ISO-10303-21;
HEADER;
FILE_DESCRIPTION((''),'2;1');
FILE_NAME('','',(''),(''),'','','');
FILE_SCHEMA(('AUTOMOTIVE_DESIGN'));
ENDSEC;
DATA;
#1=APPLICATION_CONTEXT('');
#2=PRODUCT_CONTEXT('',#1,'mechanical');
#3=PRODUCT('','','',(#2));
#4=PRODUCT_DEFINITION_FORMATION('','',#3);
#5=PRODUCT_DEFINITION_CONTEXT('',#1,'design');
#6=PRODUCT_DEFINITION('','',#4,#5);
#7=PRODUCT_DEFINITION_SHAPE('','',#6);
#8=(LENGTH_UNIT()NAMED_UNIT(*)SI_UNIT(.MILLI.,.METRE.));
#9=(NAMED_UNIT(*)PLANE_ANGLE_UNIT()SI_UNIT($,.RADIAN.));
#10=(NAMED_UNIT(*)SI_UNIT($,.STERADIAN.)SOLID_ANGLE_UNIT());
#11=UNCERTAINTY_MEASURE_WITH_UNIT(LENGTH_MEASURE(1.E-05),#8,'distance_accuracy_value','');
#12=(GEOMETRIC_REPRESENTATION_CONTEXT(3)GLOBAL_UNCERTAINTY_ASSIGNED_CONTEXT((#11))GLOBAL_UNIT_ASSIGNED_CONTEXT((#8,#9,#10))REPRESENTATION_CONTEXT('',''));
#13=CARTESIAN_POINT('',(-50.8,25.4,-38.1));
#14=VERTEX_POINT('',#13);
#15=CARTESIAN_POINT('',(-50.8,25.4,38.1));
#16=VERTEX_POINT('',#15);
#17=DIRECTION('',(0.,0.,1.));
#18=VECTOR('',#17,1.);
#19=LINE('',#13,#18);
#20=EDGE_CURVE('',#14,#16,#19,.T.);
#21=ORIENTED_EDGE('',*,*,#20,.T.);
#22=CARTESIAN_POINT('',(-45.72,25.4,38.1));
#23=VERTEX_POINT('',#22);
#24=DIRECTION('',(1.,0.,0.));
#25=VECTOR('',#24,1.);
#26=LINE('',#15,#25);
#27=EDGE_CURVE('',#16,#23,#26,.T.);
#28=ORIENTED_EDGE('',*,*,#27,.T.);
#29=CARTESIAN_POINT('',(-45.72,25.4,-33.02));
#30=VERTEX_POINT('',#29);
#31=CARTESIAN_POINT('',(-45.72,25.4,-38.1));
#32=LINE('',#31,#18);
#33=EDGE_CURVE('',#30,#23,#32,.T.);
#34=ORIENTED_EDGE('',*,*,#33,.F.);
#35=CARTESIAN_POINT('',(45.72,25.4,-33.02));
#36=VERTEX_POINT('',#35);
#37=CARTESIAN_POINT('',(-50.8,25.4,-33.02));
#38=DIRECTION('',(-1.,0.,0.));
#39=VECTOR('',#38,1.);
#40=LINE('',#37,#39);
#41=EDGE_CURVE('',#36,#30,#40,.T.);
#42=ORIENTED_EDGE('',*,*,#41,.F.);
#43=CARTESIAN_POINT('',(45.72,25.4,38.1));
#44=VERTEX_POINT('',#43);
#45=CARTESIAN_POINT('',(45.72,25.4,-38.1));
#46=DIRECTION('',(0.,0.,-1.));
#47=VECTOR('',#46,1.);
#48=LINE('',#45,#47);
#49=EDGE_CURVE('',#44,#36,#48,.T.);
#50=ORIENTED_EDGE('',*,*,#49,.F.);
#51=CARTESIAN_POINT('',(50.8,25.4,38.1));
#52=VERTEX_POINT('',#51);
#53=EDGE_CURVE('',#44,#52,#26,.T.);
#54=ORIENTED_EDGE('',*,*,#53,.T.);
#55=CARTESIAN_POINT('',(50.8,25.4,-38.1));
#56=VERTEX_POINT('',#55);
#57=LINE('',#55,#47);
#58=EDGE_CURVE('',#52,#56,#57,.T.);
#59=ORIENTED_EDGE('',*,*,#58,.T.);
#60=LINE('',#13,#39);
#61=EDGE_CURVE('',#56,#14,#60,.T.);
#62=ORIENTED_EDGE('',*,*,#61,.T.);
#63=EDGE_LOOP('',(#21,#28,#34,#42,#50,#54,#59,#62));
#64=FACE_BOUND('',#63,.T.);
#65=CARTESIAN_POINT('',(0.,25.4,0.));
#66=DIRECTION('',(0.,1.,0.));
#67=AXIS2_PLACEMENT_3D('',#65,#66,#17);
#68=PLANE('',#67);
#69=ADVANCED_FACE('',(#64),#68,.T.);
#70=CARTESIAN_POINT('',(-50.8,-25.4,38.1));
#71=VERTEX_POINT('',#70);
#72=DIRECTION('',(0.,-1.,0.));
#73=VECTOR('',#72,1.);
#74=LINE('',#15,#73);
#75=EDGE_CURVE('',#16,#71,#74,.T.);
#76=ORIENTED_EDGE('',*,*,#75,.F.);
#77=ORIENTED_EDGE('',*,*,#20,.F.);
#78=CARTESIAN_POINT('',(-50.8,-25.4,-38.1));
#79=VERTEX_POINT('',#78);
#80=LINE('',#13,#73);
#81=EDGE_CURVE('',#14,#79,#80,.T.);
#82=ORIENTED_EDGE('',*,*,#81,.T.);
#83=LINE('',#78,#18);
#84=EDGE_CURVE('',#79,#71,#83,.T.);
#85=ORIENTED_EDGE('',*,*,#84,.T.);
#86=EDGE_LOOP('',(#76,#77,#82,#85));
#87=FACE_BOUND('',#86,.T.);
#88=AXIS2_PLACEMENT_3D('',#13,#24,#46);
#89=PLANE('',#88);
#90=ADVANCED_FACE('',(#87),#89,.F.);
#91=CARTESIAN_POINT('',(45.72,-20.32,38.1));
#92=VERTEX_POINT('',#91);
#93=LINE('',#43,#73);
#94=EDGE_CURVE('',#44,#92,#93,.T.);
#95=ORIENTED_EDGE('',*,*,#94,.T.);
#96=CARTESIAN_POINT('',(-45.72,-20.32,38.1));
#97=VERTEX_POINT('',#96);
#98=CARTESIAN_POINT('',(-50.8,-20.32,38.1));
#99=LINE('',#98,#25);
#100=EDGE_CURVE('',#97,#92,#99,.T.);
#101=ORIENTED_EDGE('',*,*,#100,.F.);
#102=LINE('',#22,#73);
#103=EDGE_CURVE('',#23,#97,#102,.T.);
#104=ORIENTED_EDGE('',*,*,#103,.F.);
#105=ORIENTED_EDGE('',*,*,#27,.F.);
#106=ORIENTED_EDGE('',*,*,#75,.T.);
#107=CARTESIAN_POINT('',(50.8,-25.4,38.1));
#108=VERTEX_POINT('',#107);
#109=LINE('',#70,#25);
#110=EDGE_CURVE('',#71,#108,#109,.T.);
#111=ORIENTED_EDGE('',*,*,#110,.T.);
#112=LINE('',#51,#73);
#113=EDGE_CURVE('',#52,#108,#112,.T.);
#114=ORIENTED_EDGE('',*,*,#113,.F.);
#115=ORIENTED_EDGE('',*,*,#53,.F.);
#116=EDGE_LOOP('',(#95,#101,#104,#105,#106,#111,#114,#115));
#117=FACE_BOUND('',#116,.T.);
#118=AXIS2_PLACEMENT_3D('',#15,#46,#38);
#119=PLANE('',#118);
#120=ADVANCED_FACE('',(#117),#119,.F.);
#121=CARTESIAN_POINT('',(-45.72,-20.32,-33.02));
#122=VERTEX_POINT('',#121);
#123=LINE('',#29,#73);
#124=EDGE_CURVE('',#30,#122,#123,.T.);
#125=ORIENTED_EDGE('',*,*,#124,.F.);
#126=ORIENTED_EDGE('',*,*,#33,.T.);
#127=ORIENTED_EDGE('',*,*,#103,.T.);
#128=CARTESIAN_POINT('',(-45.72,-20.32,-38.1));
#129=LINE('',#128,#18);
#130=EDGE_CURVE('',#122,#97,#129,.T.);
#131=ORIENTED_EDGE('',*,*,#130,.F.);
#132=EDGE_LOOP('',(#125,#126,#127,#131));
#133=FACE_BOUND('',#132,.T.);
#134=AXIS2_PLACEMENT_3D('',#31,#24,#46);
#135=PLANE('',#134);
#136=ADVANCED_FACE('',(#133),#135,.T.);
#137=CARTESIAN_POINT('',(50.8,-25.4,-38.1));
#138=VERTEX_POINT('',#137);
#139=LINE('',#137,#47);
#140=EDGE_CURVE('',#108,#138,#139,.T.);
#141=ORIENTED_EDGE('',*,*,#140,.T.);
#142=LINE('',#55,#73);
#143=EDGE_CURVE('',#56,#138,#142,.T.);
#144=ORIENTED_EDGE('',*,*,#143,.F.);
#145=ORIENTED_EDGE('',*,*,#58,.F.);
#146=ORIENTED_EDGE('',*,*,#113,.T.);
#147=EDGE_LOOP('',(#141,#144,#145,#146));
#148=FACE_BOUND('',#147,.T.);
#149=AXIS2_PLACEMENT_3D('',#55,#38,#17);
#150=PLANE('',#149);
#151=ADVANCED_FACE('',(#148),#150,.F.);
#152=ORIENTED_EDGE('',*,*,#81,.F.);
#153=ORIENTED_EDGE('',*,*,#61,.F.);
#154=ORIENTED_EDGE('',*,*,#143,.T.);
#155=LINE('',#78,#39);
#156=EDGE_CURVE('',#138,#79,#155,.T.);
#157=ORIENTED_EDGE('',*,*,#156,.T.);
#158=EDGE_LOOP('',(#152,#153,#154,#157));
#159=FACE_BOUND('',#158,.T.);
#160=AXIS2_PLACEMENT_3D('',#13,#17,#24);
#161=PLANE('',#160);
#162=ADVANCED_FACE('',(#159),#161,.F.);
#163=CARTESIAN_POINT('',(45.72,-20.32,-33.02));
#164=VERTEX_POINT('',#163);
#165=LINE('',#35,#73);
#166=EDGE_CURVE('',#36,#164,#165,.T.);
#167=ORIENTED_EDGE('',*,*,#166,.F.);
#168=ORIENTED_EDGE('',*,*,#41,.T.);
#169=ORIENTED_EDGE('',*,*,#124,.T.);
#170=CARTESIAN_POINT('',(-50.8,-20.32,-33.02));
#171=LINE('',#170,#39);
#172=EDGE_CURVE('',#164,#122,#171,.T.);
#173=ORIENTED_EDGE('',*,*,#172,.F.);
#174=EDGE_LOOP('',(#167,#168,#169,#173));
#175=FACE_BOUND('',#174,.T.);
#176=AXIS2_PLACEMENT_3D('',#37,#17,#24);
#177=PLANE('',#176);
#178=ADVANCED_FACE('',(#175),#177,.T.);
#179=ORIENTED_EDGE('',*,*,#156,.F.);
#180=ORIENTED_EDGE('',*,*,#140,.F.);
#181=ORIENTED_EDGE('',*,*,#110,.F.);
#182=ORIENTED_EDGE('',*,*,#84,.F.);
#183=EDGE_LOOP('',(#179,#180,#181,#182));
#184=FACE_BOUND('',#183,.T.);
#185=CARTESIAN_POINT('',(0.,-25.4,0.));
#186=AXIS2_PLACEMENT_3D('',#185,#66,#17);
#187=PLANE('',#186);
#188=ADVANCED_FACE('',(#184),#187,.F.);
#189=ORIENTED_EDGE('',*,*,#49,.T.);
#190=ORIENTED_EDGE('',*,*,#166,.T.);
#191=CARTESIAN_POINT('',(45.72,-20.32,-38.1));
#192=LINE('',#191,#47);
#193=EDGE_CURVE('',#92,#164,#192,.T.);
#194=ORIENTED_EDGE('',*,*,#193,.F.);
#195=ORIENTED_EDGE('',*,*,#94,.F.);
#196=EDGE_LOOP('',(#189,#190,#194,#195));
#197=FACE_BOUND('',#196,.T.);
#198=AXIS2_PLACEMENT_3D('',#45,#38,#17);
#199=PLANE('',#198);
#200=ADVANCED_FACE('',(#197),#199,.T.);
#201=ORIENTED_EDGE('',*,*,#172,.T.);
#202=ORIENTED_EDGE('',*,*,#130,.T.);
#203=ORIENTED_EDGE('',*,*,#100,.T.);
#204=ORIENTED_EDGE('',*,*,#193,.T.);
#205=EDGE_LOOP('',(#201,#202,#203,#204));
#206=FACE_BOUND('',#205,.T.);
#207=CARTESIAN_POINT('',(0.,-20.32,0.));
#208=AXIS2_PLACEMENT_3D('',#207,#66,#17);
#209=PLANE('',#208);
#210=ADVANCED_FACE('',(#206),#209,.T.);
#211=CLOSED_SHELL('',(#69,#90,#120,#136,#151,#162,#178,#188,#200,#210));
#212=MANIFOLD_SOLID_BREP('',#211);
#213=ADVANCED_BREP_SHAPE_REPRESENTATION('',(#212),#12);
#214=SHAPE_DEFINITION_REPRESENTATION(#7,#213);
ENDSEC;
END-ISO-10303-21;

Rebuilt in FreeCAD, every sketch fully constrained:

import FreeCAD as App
import Part
import Sketcher
from FreeCAD import Vector
Q = App.Units.Quantity


def faces_at(feature, points):
    """Names of the faces that lie closest to the given points."""
    faces = feature.Shape.Faces
    near = lambda p: min(range(len(faces)), key=lambda i: faces[i].distToShape(Part.Vertex(*p))[0])
    return sorted({f"Face{near(p) + 1}" for p in points})


def add_polygon(sketch, points):
    """Adds a closed chain of lines whose ends are joined by coincident constraints."""
    first, n = sketch.GeometryCount, len(points)
    for a, b in zip(points, points[1:] + points[:1]):
        sketch.addGeometry(Part.LineSegment(App.Vector(*a, 0), App.Vector(*b, 0)), False)
    for i in range(n):
        sketch.addConstraint(Sketcher.Constraint("Coincident", first + i, 2, first + (i + 1) % n, 1))

doc = App.newDocument("Part")
body = doc.addObject("PartDesign::Body", "Body")

# Sketch on XZ plane
sketch1 = body.newObject("Sketcher::SketchObject", "Sketch")
sketch1.AttachmentSupport = (doc.getObject("XZ_Plane"), [""])
sketch1.MapMode = "FlatFace"
add_polygon(sketch1, [(-51, -38), (-51, 38), (51, 38), (51, -38)])  # lines 0-3
sketch1.addConstraint([
    Sketcher.Constraint("Vertical", 0),
    Sketcher.Constraint("Horizontal", 1),
    Sketcher.Constraint("Vertical", 2),
    Sketcher.Constraint("Horizontal", 3),
    Sketcher.Constraint("Symmetric", 0, 2, 2, 2, -1, 1),
    Sketcher.Constraint("DistanceX", 1, 1, 1, 2, Q("4 in")),
    Sketcher.Constraint("DistanceY", 0, 1, 0, 2, Q("3 in")),
])
pad1 = body.newObject("PartDesign::Pad", "Pad")
pad1.Profile = sketch1
pad1.Length = Q("2 in")
pad1.Midplane = True
doc.recompute()

thickness = body.newObject("PartDesign::Thickness", "Thickness")
thickness.Base = (pad1, faces_at(pad1, [(0, 25.4, 0), (0, 0, 38.1)]))
thickness.Value = Q("0.2 in")
thickness.Reversed = True
thickness.Join = "Intersection"

doc.recompute()
